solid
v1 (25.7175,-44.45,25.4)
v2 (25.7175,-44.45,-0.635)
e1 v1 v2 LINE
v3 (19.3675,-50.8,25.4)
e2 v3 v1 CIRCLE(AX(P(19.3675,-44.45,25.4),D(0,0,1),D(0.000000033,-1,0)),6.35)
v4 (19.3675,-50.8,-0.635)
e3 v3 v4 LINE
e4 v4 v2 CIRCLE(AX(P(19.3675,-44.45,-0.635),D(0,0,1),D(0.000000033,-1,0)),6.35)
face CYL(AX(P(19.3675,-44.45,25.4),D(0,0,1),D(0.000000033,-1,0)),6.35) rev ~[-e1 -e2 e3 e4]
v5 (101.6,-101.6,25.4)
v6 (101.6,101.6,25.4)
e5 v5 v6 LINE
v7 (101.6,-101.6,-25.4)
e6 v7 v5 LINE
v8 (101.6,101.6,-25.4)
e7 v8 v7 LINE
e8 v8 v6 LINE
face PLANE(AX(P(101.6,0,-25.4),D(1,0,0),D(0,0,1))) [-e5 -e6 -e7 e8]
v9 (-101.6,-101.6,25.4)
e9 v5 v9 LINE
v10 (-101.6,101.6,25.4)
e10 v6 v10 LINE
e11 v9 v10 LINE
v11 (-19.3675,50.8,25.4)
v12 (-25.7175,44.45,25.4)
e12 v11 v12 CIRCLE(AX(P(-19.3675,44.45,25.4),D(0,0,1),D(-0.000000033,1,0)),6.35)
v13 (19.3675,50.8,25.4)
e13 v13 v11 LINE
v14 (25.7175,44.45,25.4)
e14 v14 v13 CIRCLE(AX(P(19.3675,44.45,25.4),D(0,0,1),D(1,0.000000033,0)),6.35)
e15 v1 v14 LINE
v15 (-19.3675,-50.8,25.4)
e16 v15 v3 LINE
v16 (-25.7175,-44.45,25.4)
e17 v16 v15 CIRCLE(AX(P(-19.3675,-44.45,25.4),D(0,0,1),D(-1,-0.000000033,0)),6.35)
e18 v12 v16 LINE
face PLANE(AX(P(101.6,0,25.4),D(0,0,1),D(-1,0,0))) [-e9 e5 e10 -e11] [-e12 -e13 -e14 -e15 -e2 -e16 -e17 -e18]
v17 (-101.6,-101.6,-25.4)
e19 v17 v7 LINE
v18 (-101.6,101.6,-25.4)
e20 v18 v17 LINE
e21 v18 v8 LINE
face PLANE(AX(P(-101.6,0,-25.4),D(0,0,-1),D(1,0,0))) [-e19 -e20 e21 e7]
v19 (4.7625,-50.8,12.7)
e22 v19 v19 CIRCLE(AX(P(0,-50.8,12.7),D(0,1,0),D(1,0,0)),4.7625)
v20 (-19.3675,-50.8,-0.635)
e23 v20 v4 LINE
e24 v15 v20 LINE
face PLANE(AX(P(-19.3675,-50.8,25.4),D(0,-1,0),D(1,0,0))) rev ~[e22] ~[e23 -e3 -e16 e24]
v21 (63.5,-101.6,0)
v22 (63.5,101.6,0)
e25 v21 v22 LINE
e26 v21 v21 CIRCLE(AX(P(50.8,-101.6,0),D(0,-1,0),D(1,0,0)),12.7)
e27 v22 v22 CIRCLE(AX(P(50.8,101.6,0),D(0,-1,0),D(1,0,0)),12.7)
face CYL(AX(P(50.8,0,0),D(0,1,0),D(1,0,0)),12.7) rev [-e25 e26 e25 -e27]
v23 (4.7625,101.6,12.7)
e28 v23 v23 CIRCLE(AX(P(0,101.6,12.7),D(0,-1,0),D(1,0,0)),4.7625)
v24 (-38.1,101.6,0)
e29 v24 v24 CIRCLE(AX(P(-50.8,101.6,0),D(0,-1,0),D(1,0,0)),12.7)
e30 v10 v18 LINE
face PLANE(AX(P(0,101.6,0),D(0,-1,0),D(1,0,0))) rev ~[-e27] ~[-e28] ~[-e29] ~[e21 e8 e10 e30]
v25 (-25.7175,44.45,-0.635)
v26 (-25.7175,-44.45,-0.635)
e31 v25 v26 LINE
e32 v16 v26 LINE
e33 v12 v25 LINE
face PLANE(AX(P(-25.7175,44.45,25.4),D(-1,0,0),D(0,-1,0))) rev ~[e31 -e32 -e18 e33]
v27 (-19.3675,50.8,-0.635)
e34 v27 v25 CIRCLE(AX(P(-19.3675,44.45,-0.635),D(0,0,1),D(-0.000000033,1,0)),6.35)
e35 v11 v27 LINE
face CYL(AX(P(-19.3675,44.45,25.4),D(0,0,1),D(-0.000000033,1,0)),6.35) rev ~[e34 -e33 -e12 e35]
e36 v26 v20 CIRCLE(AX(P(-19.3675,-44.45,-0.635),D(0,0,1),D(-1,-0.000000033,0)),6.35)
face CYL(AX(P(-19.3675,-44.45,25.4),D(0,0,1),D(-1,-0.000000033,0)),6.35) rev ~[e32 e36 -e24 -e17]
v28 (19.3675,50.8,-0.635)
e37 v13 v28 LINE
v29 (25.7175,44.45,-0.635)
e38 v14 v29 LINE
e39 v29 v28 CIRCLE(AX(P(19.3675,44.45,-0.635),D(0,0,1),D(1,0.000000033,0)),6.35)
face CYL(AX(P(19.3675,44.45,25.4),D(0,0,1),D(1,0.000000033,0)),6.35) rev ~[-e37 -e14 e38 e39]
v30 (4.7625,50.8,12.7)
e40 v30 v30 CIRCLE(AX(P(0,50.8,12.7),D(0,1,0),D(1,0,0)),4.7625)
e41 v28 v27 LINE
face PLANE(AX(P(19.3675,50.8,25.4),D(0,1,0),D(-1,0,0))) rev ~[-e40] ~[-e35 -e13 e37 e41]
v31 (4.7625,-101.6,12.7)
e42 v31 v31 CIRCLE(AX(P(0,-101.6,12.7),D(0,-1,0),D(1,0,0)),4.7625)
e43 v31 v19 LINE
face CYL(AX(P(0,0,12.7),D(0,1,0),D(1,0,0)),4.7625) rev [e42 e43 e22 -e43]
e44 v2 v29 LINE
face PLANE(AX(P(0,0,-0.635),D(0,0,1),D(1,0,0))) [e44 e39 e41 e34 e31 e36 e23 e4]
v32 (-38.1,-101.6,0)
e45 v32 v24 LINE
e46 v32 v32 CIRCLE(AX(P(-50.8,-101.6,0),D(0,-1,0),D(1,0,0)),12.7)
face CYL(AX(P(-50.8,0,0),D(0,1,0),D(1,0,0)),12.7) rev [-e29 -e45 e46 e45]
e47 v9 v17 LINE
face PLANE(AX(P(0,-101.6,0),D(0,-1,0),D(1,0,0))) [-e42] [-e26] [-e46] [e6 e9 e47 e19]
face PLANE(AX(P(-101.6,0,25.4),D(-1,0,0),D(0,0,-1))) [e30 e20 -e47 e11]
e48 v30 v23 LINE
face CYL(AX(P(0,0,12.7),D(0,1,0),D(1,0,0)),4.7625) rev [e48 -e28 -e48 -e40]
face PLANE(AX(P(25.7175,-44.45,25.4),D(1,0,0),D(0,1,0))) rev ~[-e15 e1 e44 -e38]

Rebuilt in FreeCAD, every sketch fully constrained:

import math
import FreeCAD as App
import Part
import Sketcher
Q = App.Units.Quantity


def add_polygon(sketch, points):
    """Adds a closed chain of lines whose ends are joined by coincident constraints."""
    first, n = sketch.GeometryCount, len(points)
    for a, b in zip(points, points[1:] + points[:1]):
        sketch.addGeometry(Part.LineSegment(App.Vector(*a, 0), App.Vector(*b, 0)), False)
    for i in range(n):
        sketch.addConstraint(Sketcher.Constraint("Coincident", first + i, 2, first + (i + 1) % n, 1))

doc = App.newDocument("Part")
body = doc.addObject("PartDesign::Body", "Body")

sketch1 = body.newObject("Sketcher::SketchObject", "Sketch")
sketch1.AttachmentSupport = (doc.getObject("XZ_Plane"), [""])
sketch1.MapMode = "FlatFace"
add_polygon(sketch1, [(-101.6, 25.4), (-101.6, -25.4), (101.6, -25.4), (101.6, 25.4)])
sketch1.addGeometry(Part.Circle(App.Vector(-50.8, 0, 0), App.Vector(0, 0, 1), 12.7), False)
sketch1.addGeometry(Part.Circle(App.Vector(50.8, 0, 0), App.Vector(0, 0, 1), 12.7), False)
sketch1.addGeometry(Part.Circle(App.Vector(0, 12.7, 0), App.Vector(0, 0, 1), 4.7625), False)
sketch1.addConstraint([
    Sketcher.Constraint("Vertical", 0),
    Sketcher.Constraint("Horizontal", 1),
    Sketcher.Constraint("Vertical", 2),
    Sketcher.Constraint("Horizontal", 3),
    Sketcher.Constraint("Equal", 4, 5),
    Sketcher.Constraint("Symmetric", 4, 3, 5, 3, -1, 1),
    Sketcher.Constraint("Symmetric", 0, 2, 2, 2, -1, 1),
    Sketcher.Constraint("PointOnObject", 4, 3, -1),
    Sketcher.Constraint("PointOnObject", 6, 3, -2),
    Sketcher.Constraint("Diameter", 4, Q("1 in")),
    Sketcher.Constraint("DistanceX", 1, 1, 1, 2, Q("8 in")),
    Sketcher.Constraint("DistanceY", 0, 2, 0, 1, Q("2 in")),
    Sketcher.Constraint("Diameter", 6, Q("0.375 in")),
    Sketcher.Constraint("DistanceX", 4, 3, -1, 1, Q("2 in")),
    Sketcher.Constraint("DistanceY", -1, 1, 6, 3, Q("0.5 in")),
])
pad1 = body.newObject("PartDesign::Pad", "Pad")
pad1.Profile = sketch1
pad1.Length = Q("8 in")
pad1.Midplane = True

sketch2 = body.newObject("Sketcher::SketchObject", "Sketch001")
sketch2.AttachmentSupport = (doc.getObject("XY_Plane"), [""])
sketch2.MapMode = "FlatFace"
sketch2.AttachmentOffset = App.Placement(App.Vector(0, 0, 1 * 25.4), App.Rotation())
sketch2.addGeometry([
    Part.LineSegment(App.Vector(-19.3675, -50.8, 0), App.Vector(19.3675, -50.8, 0)),
    Part.ArcOfCircle(Part.Circle(App.Vector(19.3675, -44.45, 0), App.Vector(0, 0, 1), 6.35), math.radians(-89.999998), math.radians(-0.000002)),
    Part.LineSegment(App.Vector(25.7175, -44.45, 0), App.Vector(25.7175, 44.45, 0)),
    Part.ArcOfCircle(Part.Circle(App.Vector(19.3675, 44.45, 0), App.Vector(0, 0, 1), 6.35), math.radians(0.000002), math.radians(89.999998)),
    Part.LineSegment(App.Vector(19.3675, 50.8, 0), App.Vector(-19.3675, 50.8, 0)),
    Part.ArcOfCircle(Part.Circle(App.Vector(-19.3675, 44.45, 0), App.Vector(0, 0, 1), 6.35), math.radians(90.000002), math.radians(179.999998)),
    Part.LineSegment(App.Vector(-25.7175, 44.45, 0), App.Vector(-25.7175, -44.45, 0)),
    Part.ArcOfCircle(Part.Circle(App.Vector(-19.3675, -44.45, 0), App.Vector(0, 0, 1), 6.35), math.radians(-179.999998), math.radians(-90.000002)),
], False)
sketch2.addConstraint([
    Sketcher.Constraint("Tangent", 0, 2, 1, 1),
    Sketcher.Constraint("Tangent", 1, 2, 2, 1),
    Sketcher.Constraint("Tangent", 2, 2, 3, 1),
    Sketcher.Constraint("Tangent", 3, 2, 4, 1),
    Sketcher.Constraint("Tangent", 4, 2, 5, 1),
    Sketcher.Constraint("Tangent", 5, 2, 6, 1),
    Sketcher.Constraint("Tangent", 6, 2, 7, 1),
    Sketcher.Constraint("Tangent", 7, 2, 0, 1),
    Sketcher.Constraint("Horizontal", 0),
    Sketcher.Constraint("Vertical", 2),
    Sketcher.Constraint("Horizontal", 4),
    Sketcher.Constraint("Vertical", 6),
    Sketcher.Constraint("Equal", 1, 3),
    Sketcher.Constraint("Equal", 3, 5),
    Sketcher.Constraint("Equal", 5, 7),
    Sketcher.Constraint("Symmetric", 1, 3, 5, 3, -1, 1),
    Sketcher.Constraint("Radius", 1, Q("0.25 in")),
    Sketcher.Constraint("DistanceY", 2, 1, 2, 2, Q("3.5 in")),
    Sketcher.Constraint("DistanceX", 0, 1, 0, 2, Q("1.525 in")),
])
pocket1 = body.newObject("PartDesign::Pocket", "Pocket")
pocket1.Profile = sketch2
pocket1.Length = Q("1.025 in")

doc.recompute()
